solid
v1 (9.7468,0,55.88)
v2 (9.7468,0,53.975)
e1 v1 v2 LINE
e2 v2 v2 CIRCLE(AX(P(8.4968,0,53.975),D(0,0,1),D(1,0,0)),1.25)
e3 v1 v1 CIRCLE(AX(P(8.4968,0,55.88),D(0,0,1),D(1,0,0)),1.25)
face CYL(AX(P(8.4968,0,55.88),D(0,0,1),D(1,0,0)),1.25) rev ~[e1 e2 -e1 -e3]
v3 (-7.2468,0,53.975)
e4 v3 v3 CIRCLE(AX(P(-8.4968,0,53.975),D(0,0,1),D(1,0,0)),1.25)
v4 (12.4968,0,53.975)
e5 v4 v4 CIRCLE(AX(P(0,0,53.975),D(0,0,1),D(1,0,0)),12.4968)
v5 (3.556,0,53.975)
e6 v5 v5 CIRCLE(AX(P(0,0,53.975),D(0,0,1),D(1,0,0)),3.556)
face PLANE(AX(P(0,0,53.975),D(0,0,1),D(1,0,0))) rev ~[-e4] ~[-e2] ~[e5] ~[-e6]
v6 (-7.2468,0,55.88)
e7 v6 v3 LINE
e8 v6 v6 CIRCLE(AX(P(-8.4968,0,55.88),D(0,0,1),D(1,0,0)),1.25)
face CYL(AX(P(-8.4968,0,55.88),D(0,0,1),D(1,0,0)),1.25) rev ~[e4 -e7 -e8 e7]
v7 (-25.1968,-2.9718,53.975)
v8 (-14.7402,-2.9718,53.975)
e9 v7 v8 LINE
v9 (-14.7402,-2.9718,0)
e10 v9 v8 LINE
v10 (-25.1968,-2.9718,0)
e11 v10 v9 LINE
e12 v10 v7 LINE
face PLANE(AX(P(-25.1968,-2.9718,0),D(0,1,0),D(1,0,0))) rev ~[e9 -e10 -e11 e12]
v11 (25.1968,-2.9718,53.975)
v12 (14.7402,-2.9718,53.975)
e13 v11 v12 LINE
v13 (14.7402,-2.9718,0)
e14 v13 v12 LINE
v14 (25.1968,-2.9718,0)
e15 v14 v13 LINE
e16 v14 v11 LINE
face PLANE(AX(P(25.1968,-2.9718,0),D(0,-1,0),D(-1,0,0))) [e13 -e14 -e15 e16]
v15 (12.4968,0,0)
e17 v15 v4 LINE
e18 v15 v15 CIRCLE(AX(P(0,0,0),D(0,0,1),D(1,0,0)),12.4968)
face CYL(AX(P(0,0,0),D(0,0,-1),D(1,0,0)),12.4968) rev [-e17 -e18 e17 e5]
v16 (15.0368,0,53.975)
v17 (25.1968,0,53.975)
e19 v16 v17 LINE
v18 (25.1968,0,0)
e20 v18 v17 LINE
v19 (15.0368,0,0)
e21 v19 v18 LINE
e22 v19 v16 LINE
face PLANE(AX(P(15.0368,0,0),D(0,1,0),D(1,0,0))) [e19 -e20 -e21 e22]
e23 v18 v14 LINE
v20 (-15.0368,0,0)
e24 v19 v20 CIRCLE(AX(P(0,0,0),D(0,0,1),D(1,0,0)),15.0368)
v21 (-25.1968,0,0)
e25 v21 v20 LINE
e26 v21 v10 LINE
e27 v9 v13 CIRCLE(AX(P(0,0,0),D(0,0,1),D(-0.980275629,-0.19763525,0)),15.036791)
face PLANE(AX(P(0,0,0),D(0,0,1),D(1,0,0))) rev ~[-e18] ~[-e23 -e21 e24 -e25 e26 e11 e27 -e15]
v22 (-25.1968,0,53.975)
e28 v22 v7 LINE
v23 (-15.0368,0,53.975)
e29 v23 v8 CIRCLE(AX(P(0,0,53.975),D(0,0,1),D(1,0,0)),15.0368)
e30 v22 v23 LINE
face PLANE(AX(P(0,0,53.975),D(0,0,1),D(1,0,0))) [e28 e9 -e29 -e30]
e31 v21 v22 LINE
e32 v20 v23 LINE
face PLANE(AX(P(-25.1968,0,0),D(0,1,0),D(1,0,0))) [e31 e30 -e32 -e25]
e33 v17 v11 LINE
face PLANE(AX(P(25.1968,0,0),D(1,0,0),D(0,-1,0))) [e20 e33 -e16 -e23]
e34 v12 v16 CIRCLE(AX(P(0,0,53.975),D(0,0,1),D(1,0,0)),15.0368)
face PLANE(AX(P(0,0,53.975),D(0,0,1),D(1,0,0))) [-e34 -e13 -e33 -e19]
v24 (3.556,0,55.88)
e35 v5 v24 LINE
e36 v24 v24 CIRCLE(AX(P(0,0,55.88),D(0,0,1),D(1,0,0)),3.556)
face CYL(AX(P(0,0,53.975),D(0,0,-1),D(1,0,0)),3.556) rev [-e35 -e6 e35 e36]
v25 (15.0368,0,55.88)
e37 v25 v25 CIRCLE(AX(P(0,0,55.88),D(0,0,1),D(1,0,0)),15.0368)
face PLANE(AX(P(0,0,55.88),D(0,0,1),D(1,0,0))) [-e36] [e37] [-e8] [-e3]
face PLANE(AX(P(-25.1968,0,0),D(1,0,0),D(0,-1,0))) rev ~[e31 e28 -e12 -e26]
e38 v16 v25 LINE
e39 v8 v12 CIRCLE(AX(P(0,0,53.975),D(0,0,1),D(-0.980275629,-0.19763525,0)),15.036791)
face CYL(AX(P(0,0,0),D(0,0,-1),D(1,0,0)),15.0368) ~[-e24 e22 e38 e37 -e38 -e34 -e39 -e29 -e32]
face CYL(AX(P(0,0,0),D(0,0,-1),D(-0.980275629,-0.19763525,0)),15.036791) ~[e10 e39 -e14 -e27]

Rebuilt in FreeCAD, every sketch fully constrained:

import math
import FreeCAD as App
import Part
import Sketcher
Q = App.Units.Quantity

doc = App.newDocument("Part")
body = doc.addObject("PartDesign::Body", "Body")

# Sketch on XY plane
sketch1 = body.newObject("Sketcher::SketchObject", "Sketch")
sketch1.AttachmentSupport = (doc.getObject("XY_Plane"), [""])
sketch1.MapMode = "FlatFace"
sketch1.addGeometry([
    Part.LineSegment(App.Vector(-15, 0, 0), App.Vector(-25.2, 0, 0)),  # 0
    Part.LineSegment(App.Vector(-25.2, 0, 0), App.Vector(-25.2, -3, 0)),  # 1
    Part.LineSegment(App.Vector(-25.2, -3, 0), App.Vector(-14.7, -3, 0)),  # 2
    Part.ArcOfCircle(Part.Circle(App.Vector(0, 0, 0), App.Vector(0, 0, 1), 15), math.radians(-169), math.radians(-11)),  # 3
    Part.LineSegment(App.Vector(14.7, -3, 0), App.Vector(25.2, -3, 0)),  # 4
    Part.LineSegment(App.Vector(25.2, -3, 0), App.Vector(25.2, 0, 0)),  # 5
    Part.LineSegment(App.Vector(25.2, 0, 0), App.Vector(15, 0, 0)),  # 6
    Part.ArcOfCircle(Part.Circle(App.Vector(0, 0, 0), App.Vector(0, 0, 1), 15), math.radians(0), math.radians(180)),  # 7
    Part.Circle(App.Vector(0, 0, 0), App.Vector(0, 0, 1), 12.5),  # 8
], False)
sketch1.addConstraint([
    Sketcher.Constraint("Coincident", 0, 2, 1, 1),
    Sketcher.Constraint("Coincident", 1, 2, 2, 1),
    Sketcher.Constraint("Coincident", 2, 2, 3, 1),
    Sketcher.Constraint("Coincident", 3, 2, 4, 1),
    Sketcher.Constraint("Coincident", 4, 2, 5, 1),
    Sketcher.Constraint("Coincident", 5, 2, 6, 1),
    Sketcher.Constraint("Coincident", 6, 2, 7, 1),
    Sketcher.Constraint("Coincident", 7, 2, 0, 1),
    Sketcher.Constraint("Horizontal", 0),
    Sketcher.Constraint("Vertical", 1),
    Sketcher.Constraint("Horizontal", 2),
    Sketcher.Constraint("Horizontal", 4),
    Sketcher.Constraint("Vertical", 5),
    Sketcher.Constraint("Horizontal", 6),
    Sketcher.Constraint("Coincident", 3, 3, -1, 1),
    Sketcher.Constraint("Coincident", 7, 3, -1, 1),
    Sketcher.Constraint("Coincident", 8, 3, -1, 1),
    Sketcher.Constraint("Equal", 3, 7),
    Sketcher.Constraint("Symmetric", 0, 2, 5, 2, -1, 1),
    Sketcher.Constraint("PointOnObject", 0, 2, -1),
    Sketcher.Constraint("Horizontal", 2, 2, 3, 2),
    Sketcher.Constraint("Diameter", 8, Q("0.984 in")),
    Sketcher.Constraint("DistanceX", 0, 2, 0, 1, Q("0.4 in")),
    Sketcher.Constraint("Radius", 3, Q("0.592 in")),
    Sketcher.Constraint("DistanceY", 1, 2, 1, 1, Q("0.117 in")),
])
pad1 = body.newObject("PartDesign::Pad", "Pad")
pad1.Profile = sketch1
pad1.Length = Q("2.125 in")

# Sketch on XY plane
sketch2 = body.newObject("Sketcher::SketchObject", "Sketch001")
sketch2.AttachmentSupport = (doc.getObject("XY_Plane"), [""])
sketch2.MapMode = "FlatFace"
sketch2.AttachmentOffset = App.Placement(App.Vector(0, 0, 2.125 * 25.4), App.Rotation())
sketch2.addGeometry([
    Part.Circle(App.Vector(0, 0, 0), App.Vector(0, 0, 1), 15),
    Part.Circle(App.Vector(0, 0, 0), App.Vector(0, 0, 1), 3.6),
], False)
sketch2.addConstraint([
    Sketcher.Constraint("Coincident", 0, 3, -1, 1),
    Sketcher.Constraint("Coincident", 1, 3, -1, 1),
    Sketcher.Constraint("Diameter", 1, Q("0.28 in")),
    Sketcher.Constraint("Diameter", 0, Q("1.184 in")),
])
pad2 = body.newObject("PartDesign::Pad", "Pad001")
pad2.Profile = sketch2
pad2.Length = Q("0.075 in")

# Sketch on XY plane
sketch3 = body.newObject("Sketcher::SketchObject", "Sketch002")
sketch3.AttachmentSupport = (doc.getObject("XY_Plane"), [""])
sketch3.MapMode = "FlatFace"
sketch3.AttachmentOffset = App.Placement(App.Vector(0, 0, 2.2 * 25.4), App.Rotation())
sketch3.addGeometry([
    Part.Circle(App.Vector(-8.5, 0, 0), App.Vector(0, 0, 1), 1.2),
    Part.Circle(App.Vector(8.5, 0, 0), App.Vector(0, 0, 1), 1.2),
], False)
sketch3.addConstraint([
    Sketcher.Constraint("Equal", 0, 1),
    Sketcher.Constraint("Symmetric", 0, 3, 1, 3, -1, 1),
    Sketcher.Constraint("PointOnObject", 0, 3, -1),
    Sketcher.Constraint("Diameter", 0, Q("2.5 mm")),
    Sketcher.Constraint("DistanceX", 0, 3, -1, 1, Q("8.4968 mm")),
])
pocket1 = body.newObject("PartDesign::Pocket", "Pocket")
pocket1.Profile = sketch3
pocket1.Length = Q("10 in")

doc.recompute()
